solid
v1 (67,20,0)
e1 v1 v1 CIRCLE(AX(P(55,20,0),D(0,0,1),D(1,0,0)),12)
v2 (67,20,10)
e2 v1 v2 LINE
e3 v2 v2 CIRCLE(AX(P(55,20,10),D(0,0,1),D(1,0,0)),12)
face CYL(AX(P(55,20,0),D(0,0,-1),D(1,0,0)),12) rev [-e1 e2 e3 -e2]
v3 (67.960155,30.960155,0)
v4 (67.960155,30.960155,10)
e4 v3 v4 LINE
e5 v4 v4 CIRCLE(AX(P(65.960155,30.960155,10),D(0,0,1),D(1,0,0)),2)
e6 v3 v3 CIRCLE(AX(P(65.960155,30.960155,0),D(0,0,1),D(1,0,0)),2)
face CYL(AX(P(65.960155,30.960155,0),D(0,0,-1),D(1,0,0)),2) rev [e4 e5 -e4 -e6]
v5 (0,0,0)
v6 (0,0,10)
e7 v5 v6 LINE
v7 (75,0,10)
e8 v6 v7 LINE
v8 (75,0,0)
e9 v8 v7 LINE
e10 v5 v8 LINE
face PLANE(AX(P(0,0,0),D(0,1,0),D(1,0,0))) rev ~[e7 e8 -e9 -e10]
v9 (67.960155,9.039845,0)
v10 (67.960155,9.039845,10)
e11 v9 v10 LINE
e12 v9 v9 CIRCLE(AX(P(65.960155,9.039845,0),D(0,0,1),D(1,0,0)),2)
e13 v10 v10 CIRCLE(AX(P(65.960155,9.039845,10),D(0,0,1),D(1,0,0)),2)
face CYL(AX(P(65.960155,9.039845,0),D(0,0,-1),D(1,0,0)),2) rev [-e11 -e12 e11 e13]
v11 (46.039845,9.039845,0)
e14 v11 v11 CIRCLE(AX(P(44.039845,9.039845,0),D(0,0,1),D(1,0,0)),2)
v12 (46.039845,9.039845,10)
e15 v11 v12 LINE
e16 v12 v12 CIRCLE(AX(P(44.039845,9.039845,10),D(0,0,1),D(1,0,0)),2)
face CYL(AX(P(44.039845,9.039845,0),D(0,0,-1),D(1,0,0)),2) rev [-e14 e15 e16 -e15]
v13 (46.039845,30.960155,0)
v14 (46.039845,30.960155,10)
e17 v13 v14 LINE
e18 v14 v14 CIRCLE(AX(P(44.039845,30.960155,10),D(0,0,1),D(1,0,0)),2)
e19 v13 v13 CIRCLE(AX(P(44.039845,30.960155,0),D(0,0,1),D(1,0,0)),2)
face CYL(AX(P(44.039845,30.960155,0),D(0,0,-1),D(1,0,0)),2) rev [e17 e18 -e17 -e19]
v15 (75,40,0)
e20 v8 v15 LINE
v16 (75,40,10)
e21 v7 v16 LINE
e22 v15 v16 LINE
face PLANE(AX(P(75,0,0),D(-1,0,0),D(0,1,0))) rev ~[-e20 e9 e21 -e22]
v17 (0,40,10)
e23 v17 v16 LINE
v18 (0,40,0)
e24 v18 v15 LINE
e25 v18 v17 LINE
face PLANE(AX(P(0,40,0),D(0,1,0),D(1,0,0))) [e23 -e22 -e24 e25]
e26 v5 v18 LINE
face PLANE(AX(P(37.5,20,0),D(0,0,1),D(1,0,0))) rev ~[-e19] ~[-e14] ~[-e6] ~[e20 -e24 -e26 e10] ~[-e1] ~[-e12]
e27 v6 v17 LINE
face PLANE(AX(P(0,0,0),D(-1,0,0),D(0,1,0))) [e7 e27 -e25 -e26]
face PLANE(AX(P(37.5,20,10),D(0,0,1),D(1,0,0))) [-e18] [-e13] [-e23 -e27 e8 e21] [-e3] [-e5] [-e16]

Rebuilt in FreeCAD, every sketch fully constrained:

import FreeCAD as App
import Part
import Sketcher


def add_polygon(sketch, points):
    """Adds a closed chain of lines whose ends are joined by coincident constraints."""
    first, n = sketch.GeometryCount, len(points)
    for a, b in zip(points, points[1:] + points[:1]):
        sketch.addGeometry(Part.LineSegment(App.Vector(*a, 0), App.Vector(*b, 0)), False)
    for i in range(n):
        sketch.addConstraint(Sketcher.Constraint("Coincident", first + i, 2, first + (i + 1) % n, 1))

doc = App.newDocument("Part")
body = doc.addObject("PartDesign::Body", "Body")

# Sketch on XY plane
sketch1 = doc.addObject("Sketcher::SketchObject", "Sketch")
body.addObject(sketch1)
sketch1.AttachmentSupport = (doc.XY_Plane, [""])
sketch1.MapMode = "FlatFace"
add_polygon(sketch1, [(0, 40), (0, 0), (75, 0), (75, 40)])  # lines 0-3
sketch1.addGeometry(Part.Circle(App.Vector(44.039845, 9.039845, 0), App.Vector(0, 0, 1), 2), False)  # 4
sketch1.addGeometry(Part.Circle(App.Vector(65.960155, 9.039845, 0), App.Vector(0, 0, 1), 2), False)  # 5
sketch1.addGeometry(Part.Circle(App.Vector(44.039845, 30.960155, 0), App.Vector(0, 0, 1), 2), False)  # 6
sketch1.addGeometry(Part.Circle(App.Vector(55, 20, 0), App.Vector(0, 0, 1), 12), False)  # 7
sketch1.addGeometry(Part.Circle(App.Vector(65.960155, 30.960155, 0), App.Vector(0, 0, 1), 2), False)  # 8
sketch1.addConstraint([
    Sketcher.Constraint("Vertical", 0),
    Sketcher.Constraint("Horizontal", 1),
    Sketcher.Constraint("Vertical", 2),
    Sketcher.Constraint("Horizontal", 3),
    Sketcher.Constraint("Coincident", 0, 2, -1, 1),
    Sketcher.Constraint("Equal", 4, 5),
    Sketcher.Constraint("Equal", 5, 6),
    Sketcher.Constraint("Equal", 6, 8),
    Sketcher.Constraint("Horizontal", 4, 3, 5, 3),
    Sketcher.Constraint("Horizontal", 6, 3, 8, 3),
    Sketcher.Constraint("Vertical", 4, 3, 6, 3),
    Sketcher.Constraint("Vertical", 5, 3, 8, 3),
    Sketcher.Constraint("Diameter", 4, 4.0),
    Sketcher.Constraint("Diameter", 7, 24.0),
    Sketcher.Constraint("DistanceX", 1, 1, 1, 2, 75.0),
    Sketcher.Constraint("DistanceY", 0, 2, 0, 1, 40.0),
    Sketcher.Constraint("DistanceX", -1, 1, 7, 3, 55.0),
    Sketcher.Constraint("DistanceY", -1, 1, 7, 3, 20.0),
    Sketcher.Constraint("DistanceX", 4, 3, 5, 3, 21.92031),
    Sketcher.Constraint("DistanceY", 4, 3, 6, 3, 21.92031),
    Sketcher.Constraint("DistanceX", -1, 1, 4, 3, 44.039845),
    Sketcher.Constraint("DistanceY", -1, 1, 4, 3, 9.039845),
])
pad1 = doc.addObject("PartDesign::Pad", "Pad")
body.addObject(pad1)
pad1.Profile = sketch1
pad1.Length = 10

doc.recompute()
